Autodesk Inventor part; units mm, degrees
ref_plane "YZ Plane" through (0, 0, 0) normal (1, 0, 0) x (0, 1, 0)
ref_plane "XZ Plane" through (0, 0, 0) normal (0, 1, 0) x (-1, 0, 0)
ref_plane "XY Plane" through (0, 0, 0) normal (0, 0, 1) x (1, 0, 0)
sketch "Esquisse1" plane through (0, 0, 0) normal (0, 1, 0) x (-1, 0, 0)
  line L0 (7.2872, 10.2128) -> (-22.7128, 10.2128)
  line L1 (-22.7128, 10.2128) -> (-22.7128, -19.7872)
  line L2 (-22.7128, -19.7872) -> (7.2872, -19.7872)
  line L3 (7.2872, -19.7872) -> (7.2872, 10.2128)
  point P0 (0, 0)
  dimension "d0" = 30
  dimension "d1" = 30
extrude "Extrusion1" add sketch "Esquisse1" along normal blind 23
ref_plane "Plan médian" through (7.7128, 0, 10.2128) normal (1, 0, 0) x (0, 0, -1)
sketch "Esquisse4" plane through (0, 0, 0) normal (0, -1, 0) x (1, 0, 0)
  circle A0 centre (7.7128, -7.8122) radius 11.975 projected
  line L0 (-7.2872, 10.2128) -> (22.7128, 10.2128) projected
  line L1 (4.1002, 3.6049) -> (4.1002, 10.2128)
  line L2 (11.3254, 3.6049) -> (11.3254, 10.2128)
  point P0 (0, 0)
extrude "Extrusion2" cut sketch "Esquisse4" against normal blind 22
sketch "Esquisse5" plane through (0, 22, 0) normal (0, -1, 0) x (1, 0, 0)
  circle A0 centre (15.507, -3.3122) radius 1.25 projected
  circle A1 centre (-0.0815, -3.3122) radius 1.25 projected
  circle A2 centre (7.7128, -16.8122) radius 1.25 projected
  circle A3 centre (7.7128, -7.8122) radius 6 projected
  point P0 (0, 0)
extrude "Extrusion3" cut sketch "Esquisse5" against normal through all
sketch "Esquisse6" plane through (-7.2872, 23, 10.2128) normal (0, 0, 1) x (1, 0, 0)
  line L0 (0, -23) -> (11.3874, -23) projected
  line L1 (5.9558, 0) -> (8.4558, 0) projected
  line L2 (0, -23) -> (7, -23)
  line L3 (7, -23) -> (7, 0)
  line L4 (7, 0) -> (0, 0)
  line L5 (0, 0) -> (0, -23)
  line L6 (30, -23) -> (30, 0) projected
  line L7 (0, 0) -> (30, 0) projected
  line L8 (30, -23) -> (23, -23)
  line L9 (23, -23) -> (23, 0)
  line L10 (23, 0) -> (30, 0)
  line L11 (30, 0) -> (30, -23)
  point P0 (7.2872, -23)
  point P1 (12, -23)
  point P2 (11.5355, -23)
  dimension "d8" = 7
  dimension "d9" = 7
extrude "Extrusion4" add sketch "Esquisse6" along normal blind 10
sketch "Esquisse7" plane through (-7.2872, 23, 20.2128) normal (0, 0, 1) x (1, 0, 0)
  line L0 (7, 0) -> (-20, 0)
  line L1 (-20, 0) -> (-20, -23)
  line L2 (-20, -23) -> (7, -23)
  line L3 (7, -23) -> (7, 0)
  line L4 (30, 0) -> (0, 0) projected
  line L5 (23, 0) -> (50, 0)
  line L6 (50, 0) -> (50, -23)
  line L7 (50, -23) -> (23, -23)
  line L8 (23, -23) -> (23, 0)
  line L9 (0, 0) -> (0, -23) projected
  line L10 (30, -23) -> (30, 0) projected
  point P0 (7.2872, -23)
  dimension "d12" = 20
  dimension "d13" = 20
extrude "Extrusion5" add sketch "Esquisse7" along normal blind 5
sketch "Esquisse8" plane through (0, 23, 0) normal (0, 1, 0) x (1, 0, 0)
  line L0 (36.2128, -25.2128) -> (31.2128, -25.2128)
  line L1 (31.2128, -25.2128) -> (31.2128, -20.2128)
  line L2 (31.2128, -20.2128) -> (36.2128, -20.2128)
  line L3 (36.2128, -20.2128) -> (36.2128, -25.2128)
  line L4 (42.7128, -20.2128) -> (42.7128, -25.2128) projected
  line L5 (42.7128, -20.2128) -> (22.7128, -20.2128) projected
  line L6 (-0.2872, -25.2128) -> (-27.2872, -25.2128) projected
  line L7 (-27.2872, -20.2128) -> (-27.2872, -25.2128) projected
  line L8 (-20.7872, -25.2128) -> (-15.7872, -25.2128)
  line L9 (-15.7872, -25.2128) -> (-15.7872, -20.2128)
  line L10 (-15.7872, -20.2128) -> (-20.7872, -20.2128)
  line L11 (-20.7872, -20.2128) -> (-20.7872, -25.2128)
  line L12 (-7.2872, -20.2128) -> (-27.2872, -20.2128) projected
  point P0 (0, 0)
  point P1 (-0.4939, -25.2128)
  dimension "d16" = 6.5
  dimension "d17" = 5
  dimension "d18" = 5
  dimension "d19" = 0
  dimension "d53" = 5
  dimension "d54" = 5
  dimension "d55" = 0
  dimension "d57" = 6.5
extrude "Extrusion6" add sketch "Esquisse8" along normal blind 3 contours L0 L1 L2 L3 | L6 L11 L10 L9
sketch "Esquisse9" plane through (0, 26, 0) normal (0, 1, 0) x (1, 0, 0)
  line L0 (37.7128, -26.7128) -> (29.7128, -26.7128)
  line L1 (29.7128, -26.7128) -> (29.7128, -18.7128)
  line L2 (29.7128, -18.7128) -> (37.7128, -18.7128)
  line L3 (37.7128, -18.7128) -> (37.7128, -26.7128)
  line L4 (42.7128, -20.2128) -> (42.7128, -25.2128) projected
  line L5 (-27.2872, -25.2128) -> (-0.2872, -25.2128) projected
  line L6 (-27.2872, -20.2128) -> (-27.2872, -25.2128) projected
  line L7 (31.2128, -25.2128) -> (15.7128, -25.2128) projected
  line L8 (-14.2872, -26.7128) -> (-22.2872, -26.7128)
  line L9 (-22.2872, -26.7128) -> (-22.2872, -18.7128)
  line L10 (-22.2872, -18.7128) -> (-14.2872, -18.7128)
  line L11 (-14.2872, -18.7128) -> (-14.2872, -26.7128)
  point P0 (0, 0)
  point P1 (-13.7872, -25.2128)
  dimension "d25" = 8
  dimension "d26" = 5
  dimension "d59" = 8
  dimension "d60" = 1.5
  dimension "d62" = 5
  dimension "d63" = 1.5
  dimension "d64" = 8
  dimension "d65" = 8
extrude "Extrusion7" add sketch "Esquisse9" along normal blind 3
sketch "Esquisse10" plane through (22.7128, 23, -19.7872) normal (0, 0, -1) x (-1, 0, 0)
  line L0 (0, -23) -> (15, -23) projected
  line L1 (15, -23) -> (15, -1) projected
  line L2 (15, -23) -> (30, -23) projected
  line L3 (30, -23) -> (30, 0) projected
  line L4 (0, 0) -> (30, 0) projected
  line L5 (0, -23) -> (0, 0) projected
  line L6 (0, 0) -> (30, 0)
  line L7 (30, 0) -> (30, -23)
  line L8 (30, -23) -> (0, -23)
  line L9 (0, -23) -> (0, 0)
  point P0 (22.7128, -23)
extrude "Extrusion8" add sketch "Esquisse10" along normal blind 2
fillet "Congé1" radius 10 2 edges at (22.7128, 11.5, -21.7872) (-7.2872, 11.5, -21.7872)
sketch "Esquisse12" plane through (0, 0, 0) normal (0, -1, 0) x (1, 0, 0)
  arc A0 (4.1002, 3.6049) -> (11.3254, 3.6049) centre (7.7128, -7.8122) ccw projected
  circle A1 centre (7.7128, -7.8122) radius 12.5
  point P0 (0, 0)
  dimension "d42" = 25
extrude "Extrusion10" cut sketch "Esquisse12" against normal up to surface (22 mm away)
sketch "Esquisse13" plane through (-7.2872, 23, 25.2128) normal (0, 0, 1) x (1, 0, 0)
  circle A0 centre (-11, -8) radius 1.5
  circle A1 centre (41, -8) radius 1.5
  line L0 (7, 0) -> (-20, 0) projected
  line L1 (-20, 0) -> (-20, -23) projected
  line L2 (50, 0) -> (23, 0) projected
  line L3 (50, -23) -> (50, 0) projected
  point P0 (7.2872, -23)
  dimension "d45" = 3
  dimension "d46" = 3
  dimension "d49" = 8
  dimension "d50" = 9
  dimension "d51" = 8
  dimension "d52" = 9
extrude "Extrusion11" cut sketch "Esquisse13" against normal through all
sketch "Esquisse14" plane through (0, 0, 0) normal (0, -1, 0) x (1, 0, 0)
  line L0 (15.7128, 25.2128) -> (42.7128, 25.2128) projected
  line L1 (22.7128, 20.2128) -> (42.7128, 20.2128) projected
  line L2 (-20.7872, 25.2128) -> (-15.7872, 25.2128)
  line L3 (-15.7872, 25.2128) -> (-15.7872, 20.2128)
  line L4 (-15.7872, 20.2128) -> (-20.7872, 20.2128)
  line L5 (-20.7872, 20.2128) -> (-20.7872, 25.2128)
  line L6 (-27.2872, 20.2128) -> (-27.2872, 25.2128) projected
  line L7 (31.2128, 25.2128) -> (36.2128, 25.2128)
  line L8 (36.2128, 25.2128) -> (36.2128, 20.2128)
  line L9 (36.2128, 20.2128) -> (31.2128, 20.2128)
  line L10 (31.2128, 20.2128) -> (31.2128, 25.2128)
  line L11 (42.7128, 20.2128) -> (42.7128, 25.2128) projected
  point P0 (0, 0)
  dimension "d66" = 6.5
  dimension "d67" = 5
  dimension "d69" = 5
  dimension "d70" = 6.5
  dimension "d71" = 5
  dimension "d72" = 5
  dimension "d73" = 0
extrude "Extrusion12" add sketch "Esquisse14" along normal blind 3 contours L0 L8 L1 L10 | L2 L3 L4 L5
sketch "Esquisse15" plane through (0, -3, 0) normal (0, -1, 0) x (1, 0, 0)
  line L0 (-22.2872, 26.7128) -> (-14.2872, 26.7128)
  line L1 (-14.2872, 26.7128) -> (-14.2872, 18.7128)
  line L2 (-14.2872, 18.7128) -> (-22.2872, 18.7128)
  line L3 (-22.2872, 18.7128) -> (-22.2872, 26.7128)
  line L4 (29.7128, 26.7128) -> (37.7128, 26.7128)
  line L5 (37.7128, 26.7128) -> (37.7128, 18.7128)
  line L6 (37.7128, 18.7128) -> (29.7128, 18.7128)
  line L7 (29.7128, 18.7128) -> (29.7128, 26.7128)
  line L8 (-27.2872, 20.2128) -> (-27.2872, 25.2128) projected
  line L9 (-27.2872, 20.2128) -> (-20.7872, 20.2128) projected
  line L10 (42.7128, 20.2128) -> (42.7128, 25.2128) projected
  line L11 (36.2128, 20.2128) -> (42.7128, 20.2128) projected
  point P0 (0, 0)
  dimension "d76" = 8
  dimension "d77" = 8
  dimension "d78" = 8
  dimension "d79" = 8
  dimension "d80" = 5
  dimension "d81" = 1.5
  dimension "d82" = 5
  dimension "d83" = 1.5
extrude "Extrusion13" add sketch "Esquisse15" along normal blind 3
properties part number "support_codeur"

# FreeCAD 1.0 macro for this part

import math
import FreeCAD as App
import Part
import Sketcher
from FreeCAD import Vector
Q = App.Units.Quantity


def edges_at(feature, points):
    """Names of the edges that pass closest to the given points."""
    edges = feature.Shape.Edges
    near = lambda p: min(range(len(edges)), key=lambda i: edges[i].distToShape(Part.Vertex(*p))[0])
    return sorted({f"Edge{near(p) + 1}" for p in points})


def add_polygon(sketch, points):
    """Adds a closed chain of lines whose ends are joined by coincident constraints."""
    first, n = sketch.GeometryCount, len(points)
    for a, b in zip(points, points[1:] + points[:1]):
        sketch.addGeometry(Part.LineSegment(App.Vector(*a, 0), App.Vector(*b, 0)), False)
    for i in range(n):
        sketch.addConstraint(Sketcher.Constraint("Coincident", first + i, 2, first + (i + 1) % n, 1))

doc = App.newDocument("Part")
body = doc.addObject("PartDesign::Body", "Body")

# Sketch on XZ plane
sketch1 = body.newObject("Sketcher::SketchObject", "Sketch")
sketch1.AttachmentSupport = (doc.getObject("XZ_Plane"), [""])
sketch1.MapMode = "FlatFace"
add_polygon(sketch1, [(-7, -20), (-7, 10), (23, 10), (23, -20)])  # lines 0-3
sketch1.addConstraint(Sketcher.Constraint("Vertical", 0))
sketch1.addConstraint(Sketcher.Constraint("Horizontal", 1))
sketch1.addConstraint(Sketcher.Constraint("Vertical", 2))
sketch1.addConstraint(Sketcher.Constraint("Horizontal", 3))
sketch1.addConstraint(Sketcher.Constraint("Equal", 3, 0))
sketch1.addConstraint(Sketcher.Constraint("DistanceX", 1, 1, 1, 2, Q("30 mm")))
sketch1.addConstraint(Sketcher.Constraint("DistanceX", 0, 2, -1, 1, Q("7.2872 mm")))
sketch1.addConstraint(Sketcher.Constraint("DistanceY", -1, 1, 0, 2, Q("10.2128 mm")))
pad1 = body.newObject("PartDesign::Pad", "Pad")
pad1.Profile = sketch1
pad1.Length = 23
pad1.Reversed = True

# Sketch on XZ plane
sketch2 = body.newObject("Sketcher::SketchObject", "Sketch001")
sketch2.AttachmentSupport = (doc.getObject("XZ_Plane"), [""])
sketch2.MapMode = "FlatFace"
sketch2.addGeometry(Part.ArcOfCircle(Part.Circle(Vector(8, -8, 0), Vector(0, 0, 1), 12), math.radians(108), math.radians(432)), False)
sketch2.addGeometry(Part.LineSegment(Vector(11, 4, 0), Vector(11, 10, 0)), False)
sketch2.addGeometry(Part.LineSegment(Vector(11, 10, 0), Vector(4, 10, 0)), False)
sketch2.addGeometry(Part.LineSegment(Vector(4, 10, 0), Vector(4, 4, 0)), False)
sketch2.addConstraint(Sketcher.Constraint("Coincident", 0, 2, 1, 1))
sketch2.addConstraint(Sketcher.Constraint("Coincident", 1, 2, 2, 1))
sketch2.addConstraint(Sketcher.Constraint("Coincident", 2, 2, 3, 1))
sketch2.addConstraint(Sketcher.Constraint("Coincident", 3, 2, 0, 1))
sketch2.addConstraint(Sketcher.Constraint("Vertical", 1))
sketch2.addConstraint(Sketcher.Constraint("Horizontal", 2))
sketch2.addConstraint(Sketcher.Constraint("Vertical", 3))
sketch2.addConstraint(Sketcher.Constraint("Horizontal", 0, 2, 3, 2))
sketch2.addConstraint(Sketcher.Constraint("Radius", 0, Q("11.975 mm")))
sketch2.addConstraint(Sketcher.Constraint("DistanceY", 1, 1, 1, 2, Q("6.608 mm")))
sketch2.addConstraint(Sketcher.Constraint("DistanceX", 2, 2, 2, 1, Q("7.2252 mm")))
sketch2.addConstraint(Sketcher.Constraint("DistanceY", -1, 1, 0, 2, Q("3.605 mm")))
sketch2.addConstraint(Sketcher.Constraint("DistanceX", -1, 1, 0, 3, Q("7.7128 mm")))
pocket1 = body.newObject("PartDesign::Pocket", "Pocket")
pocket1.Profile = sketch2
pocket1.Length = 22

# Sketch on XZ plane
sketch3 = body.newObject("Sketcher::SketchObject", "Sketch002")
sketch3.AttachmentSupport = (doc.getObject("XZ_Plane"), [""])
sketch3.MapMode = "FlatFace"
sketch3.AttachmentOffset = App.Placement(Vector(0, 0, -22), App.Rotation())
sketch3.addGeometry(Part.Circle(Vector(15.5, -3.3, 0), Vector(0, 0, 1), 1.2), False)
sketch3.addGeometry(Part.Circle(Vector(-0.1, -3.3, 0), Vector(0, 0, 1), 1.2), False)
sketch3.addGeometry(Part.Circle(Vector(7.7, -16.8, 0), Vector(0, 0, 1), 1.2), False)
sketch3.addGeometry(Part.Circle(Vector(7.7, -7.8, 0), Vector(0, 0, 1), 6), False)
sketch3.addConstraint(Sketcher.Constraint("Equal", 0, 1))
sketch3.addConstraint(Sketcher.Constraint("Equal", 1, 2))
sketch3.addConstraint(Sketcher.Constraint("Horizontal", 0, 3, 1, 3))
sketch3.addConstraint(Sketcher.Constraint("Vertical", 2, 3, 3, 3))
sketch3.addConstraint(Sketcher.Constraint("Diameter", 3, Q("12 mm")))
sketch3.addConstraint(Sketcher.Constraint("Diameter", 0, Q("2.5 mm")))
sketch3.addConstraint(Sketcher.Constraint("DistanceY", 2, 3, 3, 3, Q("9 mm")))
sketch3.addConstraint(Sketcher.Constraint("DistanceY", 2, 3, 0, 3, Q("13.5 mm")))
sketch3.addConstraint(Sketcher.Constraint("DistanceX", -1, 1, 0, 3, Q("15.507 mm")))
sketch3.addConstraint(Sketcher.Constraint("DistanceY", 0, 3, -1, 1, Q("3.3122 mm")))
sketch3.addConstraint(Sketcher.Constraint("DistanceX", 1, 3, -1, 1, Q("0.0815 mm")))
sketch3.addConstraint(Sketcher.Constraint("DistanceX", -1, 1, 2, 3, Q("7.7128 mm")))
pocket2 = body.newObject("PartDesign::Pocket", "Pocket001")
pocket2.Profile = sketch3
pocket2.Type = "ThroughAll"

# Sketch on XY plane
sketch4 = body.newObject("Sketcher::SketchObject", "Sketch003")
sketch4.AttachmentSupport = (doc.getObject("XY_Plane"), [""])
sketch4.MapMode = "FlatFace"
sketch4.AttachmentOffset = App.Placement(Vector(0, 0, 10.2128), App.Rotation())
add_polygon(sketch4, [(-7, 23), (-7, 0), (0, 0), (0, 23)])  # lines 0-3
add_polygon(sketch4, [(23, 23), (16, 23), (16, 0), (23, 0)])  # lines 4-7
sketch4.addConstraint(Sketcher.Constraint("Vertical", 0))
sketch4.addConstraint(Sketcher.Constraint("Horizontal", 1))
sketch4.addConstraint(Sketcher.Constraint("Vertical", 2))
sketch4.addConstraint(Sketcher.Constraint("Horizontal", 3))
sketch4.addConstraint(Sketcher.Constraint("Horizontal", 4))
sketch4.addConstraint(Sketcher.Constraint("Vertical", 5))
sketch4.addConstraint(Sketcher.Constraint("Horizontal", 6))
sketch4.addConstraint(Sketcher.Constraint("Vertical", 7))
sketch4.addConstraint(Sketcher.Constraint("PointOnObject", 0, 2, -1))
sketch4.addConstraint(Sketcher.Constraint("PointOnObject", 5, 2, -1))
sketch4.addConstraint(Sketcher.Constraint("Horizontal", 3, 2, 4, 2))
sketch4.addConstraint(Sketcher.Constraint("Equal", 3, 4))
sketch4.addConstraint(Sketcher.Constraint("DistanceX", 1, 1, 1, 2, Q("7 mm")))
sketch4.addConstraint(Sketcher.Constraint("DistanceY", 0, 2, 0, 1, Q("23 mm")))
sketch4.addConstraint(Sketcher.Constraint("DistanceX", 2, 2, 4, 2, Q("16 mm")))
sketch4.addConstraint(Sketcher.Constraint("DistanceX", 0, 2, -1, 1, Q("7.2872 mm")))
pad2 = body.newObject("PartDesign::Pad", "Pad001")
pad2.Profile = sketch4
pad2.Length = 10

# Sketch on XY plane
sketch5 = body.newObject("Sketcher::SketchObject", "Sketch004")
sketch5.AttachmentSupport = (doc.getObject("XY_Plane"), [""])
sketch5.MapMode = "FlatFace"
sketch5.AttachmentOffset = App.Placement(Vector(0, 0, 20.2128), App.Rotation())
add_polygon(sketch5, [(0, 0), (0, 23), (-27, 23), (-27, 0)])  # lines 0-3
add_polygon(sketch5, [(16, 23), (16, 0), (43, 0), (43, 23)])  # lines 4-7
sketch5.addConstraint(Sketcher.Constraint("Vertical", 0))
sketch5.addConstraint(Sketcher.Constraint("Horizontal", 1))
sketch5.addConstraint(Sketcher.Constraint("Vertical", 2))
sketch5.addConstraint(Sketcher.Constraint("Horizontal", 3))
sketch5.addConstraint(Sketcher.Constraint("Vertical", 4))
sketch5.addConstraint(Sketcher.Constraint("Horizontal", 5))
sketch5.addConstraint(Sketcher.Constraint("Vertical", 6))
sketch5.addConstraint(Sketcher.Constraint("Horizontal", 7))
sketch5.addConstraint(Sketcher.Constraint("PointOnObject", 2, 2, -1))
sketch5.addConstraint(Sketcher.Constraint("PointOnObject", 4, 2, -1))
sketch5.addConstraint(Sketcher.Constraint("Horizontal", 1, 2, 6, 2))
sketch5.addConstraint(Sketcher.Constraint("Equal", 3, 5))
sketch5.addConstraint(Sketcher.Constraint("DistanceX", 1, 2, 1, 1, Q("27 mm")))
sketch5.addConstraint(Sketcher.Constraint("DistanceY", 0, 1, 0, 2, Q("23 mm")))
sketch5.addConstraint(Sketcher.Constraint("DistanceX", 3, 2, 4, 2, Q("16 mm")))
sketch5.addConstraint(Sketcher.Constraint("DistanceX", 0, 2, -1, 1, Q("0.2872 mm")))
pad3 = body.newObject("PartDesign::Pad", "Pad002")
pad3.Profile = sketch5
pad3.Length = 5

# Sketch on XZ plane
sketch6 = body.newObject("Sketcher::SketchObject", "Sketch005")
sketch6.AttachmentSupport = (doc.getObject("XZ_Plane"), [""])
sketch6.MapMode = "FlatFace"
sketch6.AttachmentOffset = App.Placement(Vector(0, 0, -23), App.Rotation())
add_polygon(sketch6, [(31.2, 25.2), (36.2, 25.2), (36.2, 20.2), (31.2, 20.2)])  # lines 0-3
add_polygon(sketch6, [(-20.8, 25.2), (-15.8, 25.2), (-15.8, 20.2), (-20.8, 20.2)])  # lines 4-7
sketch6.addConstraint(Sketcher.Constraint("Horizontal", 0))
sketch6.addConstraint(Sketcher.Constraint("Vertical", 1))
sketch6.addConstraint(Sketcher.Constraint("Horizontal", 2))
sketch6.addConstraint(Sketcher.Constraint("Vertical", 3))
sketch6.addConstraint(Sketcher.Constraint("Horizontal", 4))
sketch6.addConstraint(Sketcher.Constraint("Vertical", 5))
sketch6.addConstraint(Sketcher.Constraint("Horizontal", 6))
sketch6.addConstraint(Sketcher.Constraint("Vertical", 7))
sketch6.addConstraint(Sketcher.Constraint("Horizontal", 3, 2, 4, 2))
sketch6.addConstraint(Sketcher.Constraint("Horizontal", 2, 2, 5, 2))
sketch6.addConstraint(Sketcher.Constraint("Equal", 2, 4))
sketch6.addConstraint(Sketcher.Constraint("Equal", 6, 1))
sketch6.addConstraint(Sketcher.Constraint("DistanceX", 0, 1, 0, 2, Q("5 mm")))
sketch6.addConstraint(Sketcher.Constraint("DistanceX", 4, 2, 3, 2, Q("47 mm")))
sketch6.addConstraint(Sketcher.Constraint("DistanceX", -1, 1, 0, 2, Q("36.2128 mm")))
sketch6.addConstraint(Sketcher.Constraint("DistanceY", -1, 1, 0, 2, Q("25.2128 mm")))
pad4 = body.newObject("PartDesign::Pad", "Pad003")
pad4.Profile = sketch6
pad4.Length = 3
pad4.Reversed = True

# Sketch on XZ plane
sketch7 = body.newObject("Sketcher::SketchObject", "Sketch006")
sketch7.AttachmentSupport = (doc.getObject("XZ_Plane"), [""])
sketch7.MapMode = "FlatFace"
sketch7.AttachmentOffset = App.Placement(Vector(0, 0, -26), App.Rotation())
add_polygon(sketch7, [(30, 27), (38, 27), (38, 19), (30, 19)])  # lines 0-3
add_polygon(sketch7, [(-22, 19), (-22, 27), (-14, 27), (-14, 19)])  # lines 4-7
sketch7.addConstraint(Sketcher.Constraint("Horizontal", 0))
sketch7.addConstraint(Sketcher.Constraint("Vertical", 1))
sketch7.addConstraint(Sketcher.Constraint("Horizontal", 2))
sketch7.addConstraint(Sketcher.Constraint("Vertical", 3))
sketch7.addConstraint(Sketcher.Constraint("Vertical", 4))
sketch7.addConstraint(Sketcher.Constraint("Horizontal", 5))
sketch7.addConstraint(Sketcher.Constraint("Vertical", 6))
sketch7.addConstraint(Sketcher.Constraint("Horizontal", 7))
sketch7.addConstraint(Sketcher.Constraint("Horizontal", 3, 2, 4, 2))
sketch7.addConstraint(Sketcher.Constraint("Horizontal", 2, 2, 6, 2))
sketch7.addConstraint(Sketcher.Constraint("Equal", 2, 5))
sketch7.addConstraint(Sketcher.Constraint("Equal", 7, 1))
sketch7.addConstraint(Sketcher.Constraint("DistanceX", 0, 1, 0, 2, Q("8 mm")))
sketch7.addConstraint(Sketcher.Constraint("DistanceX", 4, 2, 3, 2, Q("52 mm")))
sketch7.addConstraint(Sketcher.Constraint("DistanceX", -1, 1, 0, 2, Q("37.7128 mm")))
sketch7.addConstraint(Sketcher.Constraint("DistanceY", -1, 1, 0, 2, Q("26.7128 mm")))
pad5 = body.newObject("PartDesign::Pad", "Pad004")
pad5.Profile = sketch7
pad5.Length = 3
pad5.Reversed = True

# Sketch on XY plane
sketch8 = body.newObject("Sketcher::SketchObject", "Sketch007")
sketch8.AttachmentSupport = (doc.getObject("XY_Plane"), [""])
sketch8.MapMode = "FlatFace"
sketch8.AttachmentOffset = App.Placement(Vector(0, 0, -19.7872), App.Rotation())
add_polygon(sketch8, [(23, 23), (23, 0), (-7, 0), (-7, 23)])  # lines 0-3
sketch8.addConstraint(Sketcher.Constraint("Vertical", 0))
sketch8.addConstraint(Sketcher.Constraint("Horizontal", 1))
sketch8.addConstraint(Sketcher.Constraint("Vertical", 2))
sketch8.addConstraint(Sketcher.Constraint("Horizontal", 3))
sketch8.addConstraint(Sketcher.Constraint("PointOnObject", 0, 2, -1))
sketch8.addConstraint(Sketcher.Constraint("DistanceX", 1, 2, 1, 1, Q("30 mm")))
sketch8.addConstraint(Sketcher.Constraint("DistanceY", 0, 2, 0, 1, Q("23 mm")))
sketch8.addConstraint(Sketcher.Constraint("DistanceX", -1, 1, 0, 2, Q("22.7128 mm")))
pad6 = body.newObject("PartDesign::Pad", "Pad005")
pad6.Profile = sketch8
pad6.Length = 2
pad6.Reversed = True
doc.recompute()

fillet = body.newObject("PartDesign::Fillet", "Fillet")
fillet.Base = (pad6, edges_at(pad6, [(22.713, 11.5, -21.787), (-7.287, 11.5, -21.787)]))
fillet.Radius = 10

# Sketch on XZ plane
sketch9 = body.newObject("Sketcher::SketchObject", "Sketch008")
sketch9.AttachmentSupport = (doc.getObject("XZ_Plane"), [""])
sketch9.MapMode = "FlatFace"
sketch9.addGeometry(Part.Circle(Vector(8, -8, 0), Vector(0, 0, 1), 12), False)
sketch9.addConstraint(Sketcher.Constraint("Diameter", 0, Q("25 mm")))
sketch9.addConstraint(Sketcher.Constraint("DistanceX", -1, 1, 0, 3, Q("7.7128 mm")))
sketch9.addConstraint(Sketcher.Constraint("DistanceY", 0, 3, -1, 1, Q("7.8122 mm")))
pocket3 = body.newObject("PartDesign::Pocket", "Pocket002")
pocket3.Profile = sketch9
pocket3.Length = 22

# Sketch on XY plane
sketch10 = body.newObject("Sketcher::SketchObject", "Sketch009")
sketch10.AttachmentSupport = (doc.getObject("XY_Plane"), [""])
sketch10.MapMode = "FlatFace"
sketch10.AttachmentOffset = App.Placement(Vector(0, 0, 25.2128), App.Rotation())
sketch10.addGeometry(Part.Circle(Vector(-18.3, 15, 0), Vector(0, 0, 1), 1.5), False)
sketch10.addGeometry(Part.Circle(Vector(33.7, 15, 0), Vector(0, 0, 1), 1.5), False)
sketch10.addConstraint(Sketcher.Constraint("Equal", 0, 1))
sketch10.addConstraint(Sketcher.Constraint("Horizontal", 0, 3, 1, 3))
sketch10.addConstraint(Sketcher.Constraint("Diameter", 0, Q("3 mm")))
sketch10.addConstraint(Sketcher.Constraint("DistanceY", -1, 1, 0, 3, Q("15 mm")))
sketch10.addConstraint(Sketcher.Constraint("DistanceX", 0, 3, 1, 3, Q("52 mm")))
sketch10.addConstraint(Sketcher.Constraint("DistanceX", 0, 3, -1, 1, Q("18.2872 mm")))
pocket4 = body.newObject("PartDesign::Pocket", "Pocket003")
pocket4.Profile = sketch10
pocket4.Type = "ThroughAll"

# Sketch on XZ plane
sketch11 = body.newObject("Sketcher::SketchObject", "Sketch010")
sketch11.AttachmentSupport = (doc.getObject("XZ_Plane"), [""])
sketch11.MapMode = "FlatFace"
add_polygon(sketch11, [(36.2, 25.2), (31.2, 25.2), (31.2, 20.2), (36.2, 20.2)])  # lines 0-3
add_polygon(sketch11, [(-15.8, 25.2), (-20.8, 25.2), (-20.8, 20.2), (-15.8, 20.2)])  # lines 4-7
sketch11.addConstraint(Sketcher.Constraint("Horizontal", 0))
sketch11.addConstraint(Sketcher.Constraint("Vertical", 1))
sketch11.addConstraint(Sketcher.Constraint("Horizontal", 2))
sketch11.addConstraint(Sketcher.Constraint("Vertical", 3))
sketch11.addConstraint(Sketcher.Constraint("Horizontal", 4))
sketch11.addConstraint(Sketcher.Constraint("Vertical", 5))
sketch11.addConstraint(Sketcher.Constraint("Horizontal", 6))
sketch11.addConstraint(Sketcher.Constraint("Vertical", 7))
sketch11.addConstraint(Sketcher.Constraint("Horizontal", 3, 2, 4, 2))
sketch11.addConstraint(Sketcher.Constraint("Horizontal", 2, 2, 5, 2))
sketch11.addConstraint(Sketcher.Constraint("Equal", 2, 4))
sketch11.addConstraint(Sketcher.Constraint("Equal", 6, 1))
sketch11.addConstraint(Sketcher.Constraint("DistanceX", 0, 2, 0, 1, Q("5 mm")))
sketch11.addConstraint(Sketcher.Constraint("DistanceX", 4, 2, 0, 2, Q("52 mm")))
sketch11.addConstraint(Sketcher.Constraint("DistanceX", -1, 1, 0, 2, Q("31.2128 mm")))
sketch11.addConstraint(Sketcher.Constraint("DistanceY", -1, 1, 0, 2, Q("25.2128 mm")))
pad7 = body.newObject("PartDesign::Pad", "Pad006")
pad7.Profile = sketch11
pad7.Length = 3

# Sketch on XZ plane
sketch12 = body.newObject("Sketcher::SketchObject", "Sketch011")
sketch12.AttachmentSupport = (doc.getObject("XZ_Plane"), [""])
sketch12.MapMode = "FlatFace"
sketch12.AttachmentOffset = App.Placement(Vector(0, 0, 3), App.Rotation())
add_polygon(sketch12, [(-14, 27), (-22, 27), (-22, 19), (-14, 19)])  # lines 0-3
add_polygon(sketch12, [(38, 27), (30, 27), (30, 19), (38, 19)])  # lines 4-7
sketch12.addConstraint(Sketcher.Constraint("Horizontal", 0))
sketch12.addConstraint(Sketcher.Constraint("Vertical", 1))
sketch12.addConstraint(Sketcher.Constraint("Horizontal", 2))
sketch12.addConstraint(Sketcher.Constraint("Vertical", 3))
sketch12.addConstraint(Sketcher.Constraint("Horizontal", 4))
sketch12.addConstraint(Sketcher.Constraint("Vertical", 5))
sketch12.addConstraint(Sketcher.Constraint("Horizontal", 6))
sketch12.addConstraint(Sketcher.Constraint("Vertical", 7))
sketch12.addConstraint(Sketcher.Constraint("Horizontal", 3, 2, 4, 2))
sketch12.addConstraint(Sketcher.Constraint("Horizontal", 2, 2, 5, 2))
sketch12.addConstraint(Sketcher.Constraint("Equal", 2, 4))
sketch12.addConstraint(Sketcher.Constraint("Equal", 6, 1))
sketch12.addConstraint(Sketcher.Constraint("DistanceX", 0, 2, 0, 1, Q("8 mm")))
sketch12.addConstraint(Sketcher.Constraint("DistanceX", 3, 2, 4, 2, Q("44 mm")))
sketch12.addConstraint(Sketcher.Constraint("DistanceX", 0, 2, -1, 1, Q("22.2872 mm")))
sketch12.addConstraint(Sketcher.Constraint("DistanceY", -1, 1, 0, 2, Q("26.7128 mm")))
pad8 = body.newObject("PartDesign::Pad", "Pad007")
pad8.Profile = sketch12
pad8.Length = 3

doc.recompute()
